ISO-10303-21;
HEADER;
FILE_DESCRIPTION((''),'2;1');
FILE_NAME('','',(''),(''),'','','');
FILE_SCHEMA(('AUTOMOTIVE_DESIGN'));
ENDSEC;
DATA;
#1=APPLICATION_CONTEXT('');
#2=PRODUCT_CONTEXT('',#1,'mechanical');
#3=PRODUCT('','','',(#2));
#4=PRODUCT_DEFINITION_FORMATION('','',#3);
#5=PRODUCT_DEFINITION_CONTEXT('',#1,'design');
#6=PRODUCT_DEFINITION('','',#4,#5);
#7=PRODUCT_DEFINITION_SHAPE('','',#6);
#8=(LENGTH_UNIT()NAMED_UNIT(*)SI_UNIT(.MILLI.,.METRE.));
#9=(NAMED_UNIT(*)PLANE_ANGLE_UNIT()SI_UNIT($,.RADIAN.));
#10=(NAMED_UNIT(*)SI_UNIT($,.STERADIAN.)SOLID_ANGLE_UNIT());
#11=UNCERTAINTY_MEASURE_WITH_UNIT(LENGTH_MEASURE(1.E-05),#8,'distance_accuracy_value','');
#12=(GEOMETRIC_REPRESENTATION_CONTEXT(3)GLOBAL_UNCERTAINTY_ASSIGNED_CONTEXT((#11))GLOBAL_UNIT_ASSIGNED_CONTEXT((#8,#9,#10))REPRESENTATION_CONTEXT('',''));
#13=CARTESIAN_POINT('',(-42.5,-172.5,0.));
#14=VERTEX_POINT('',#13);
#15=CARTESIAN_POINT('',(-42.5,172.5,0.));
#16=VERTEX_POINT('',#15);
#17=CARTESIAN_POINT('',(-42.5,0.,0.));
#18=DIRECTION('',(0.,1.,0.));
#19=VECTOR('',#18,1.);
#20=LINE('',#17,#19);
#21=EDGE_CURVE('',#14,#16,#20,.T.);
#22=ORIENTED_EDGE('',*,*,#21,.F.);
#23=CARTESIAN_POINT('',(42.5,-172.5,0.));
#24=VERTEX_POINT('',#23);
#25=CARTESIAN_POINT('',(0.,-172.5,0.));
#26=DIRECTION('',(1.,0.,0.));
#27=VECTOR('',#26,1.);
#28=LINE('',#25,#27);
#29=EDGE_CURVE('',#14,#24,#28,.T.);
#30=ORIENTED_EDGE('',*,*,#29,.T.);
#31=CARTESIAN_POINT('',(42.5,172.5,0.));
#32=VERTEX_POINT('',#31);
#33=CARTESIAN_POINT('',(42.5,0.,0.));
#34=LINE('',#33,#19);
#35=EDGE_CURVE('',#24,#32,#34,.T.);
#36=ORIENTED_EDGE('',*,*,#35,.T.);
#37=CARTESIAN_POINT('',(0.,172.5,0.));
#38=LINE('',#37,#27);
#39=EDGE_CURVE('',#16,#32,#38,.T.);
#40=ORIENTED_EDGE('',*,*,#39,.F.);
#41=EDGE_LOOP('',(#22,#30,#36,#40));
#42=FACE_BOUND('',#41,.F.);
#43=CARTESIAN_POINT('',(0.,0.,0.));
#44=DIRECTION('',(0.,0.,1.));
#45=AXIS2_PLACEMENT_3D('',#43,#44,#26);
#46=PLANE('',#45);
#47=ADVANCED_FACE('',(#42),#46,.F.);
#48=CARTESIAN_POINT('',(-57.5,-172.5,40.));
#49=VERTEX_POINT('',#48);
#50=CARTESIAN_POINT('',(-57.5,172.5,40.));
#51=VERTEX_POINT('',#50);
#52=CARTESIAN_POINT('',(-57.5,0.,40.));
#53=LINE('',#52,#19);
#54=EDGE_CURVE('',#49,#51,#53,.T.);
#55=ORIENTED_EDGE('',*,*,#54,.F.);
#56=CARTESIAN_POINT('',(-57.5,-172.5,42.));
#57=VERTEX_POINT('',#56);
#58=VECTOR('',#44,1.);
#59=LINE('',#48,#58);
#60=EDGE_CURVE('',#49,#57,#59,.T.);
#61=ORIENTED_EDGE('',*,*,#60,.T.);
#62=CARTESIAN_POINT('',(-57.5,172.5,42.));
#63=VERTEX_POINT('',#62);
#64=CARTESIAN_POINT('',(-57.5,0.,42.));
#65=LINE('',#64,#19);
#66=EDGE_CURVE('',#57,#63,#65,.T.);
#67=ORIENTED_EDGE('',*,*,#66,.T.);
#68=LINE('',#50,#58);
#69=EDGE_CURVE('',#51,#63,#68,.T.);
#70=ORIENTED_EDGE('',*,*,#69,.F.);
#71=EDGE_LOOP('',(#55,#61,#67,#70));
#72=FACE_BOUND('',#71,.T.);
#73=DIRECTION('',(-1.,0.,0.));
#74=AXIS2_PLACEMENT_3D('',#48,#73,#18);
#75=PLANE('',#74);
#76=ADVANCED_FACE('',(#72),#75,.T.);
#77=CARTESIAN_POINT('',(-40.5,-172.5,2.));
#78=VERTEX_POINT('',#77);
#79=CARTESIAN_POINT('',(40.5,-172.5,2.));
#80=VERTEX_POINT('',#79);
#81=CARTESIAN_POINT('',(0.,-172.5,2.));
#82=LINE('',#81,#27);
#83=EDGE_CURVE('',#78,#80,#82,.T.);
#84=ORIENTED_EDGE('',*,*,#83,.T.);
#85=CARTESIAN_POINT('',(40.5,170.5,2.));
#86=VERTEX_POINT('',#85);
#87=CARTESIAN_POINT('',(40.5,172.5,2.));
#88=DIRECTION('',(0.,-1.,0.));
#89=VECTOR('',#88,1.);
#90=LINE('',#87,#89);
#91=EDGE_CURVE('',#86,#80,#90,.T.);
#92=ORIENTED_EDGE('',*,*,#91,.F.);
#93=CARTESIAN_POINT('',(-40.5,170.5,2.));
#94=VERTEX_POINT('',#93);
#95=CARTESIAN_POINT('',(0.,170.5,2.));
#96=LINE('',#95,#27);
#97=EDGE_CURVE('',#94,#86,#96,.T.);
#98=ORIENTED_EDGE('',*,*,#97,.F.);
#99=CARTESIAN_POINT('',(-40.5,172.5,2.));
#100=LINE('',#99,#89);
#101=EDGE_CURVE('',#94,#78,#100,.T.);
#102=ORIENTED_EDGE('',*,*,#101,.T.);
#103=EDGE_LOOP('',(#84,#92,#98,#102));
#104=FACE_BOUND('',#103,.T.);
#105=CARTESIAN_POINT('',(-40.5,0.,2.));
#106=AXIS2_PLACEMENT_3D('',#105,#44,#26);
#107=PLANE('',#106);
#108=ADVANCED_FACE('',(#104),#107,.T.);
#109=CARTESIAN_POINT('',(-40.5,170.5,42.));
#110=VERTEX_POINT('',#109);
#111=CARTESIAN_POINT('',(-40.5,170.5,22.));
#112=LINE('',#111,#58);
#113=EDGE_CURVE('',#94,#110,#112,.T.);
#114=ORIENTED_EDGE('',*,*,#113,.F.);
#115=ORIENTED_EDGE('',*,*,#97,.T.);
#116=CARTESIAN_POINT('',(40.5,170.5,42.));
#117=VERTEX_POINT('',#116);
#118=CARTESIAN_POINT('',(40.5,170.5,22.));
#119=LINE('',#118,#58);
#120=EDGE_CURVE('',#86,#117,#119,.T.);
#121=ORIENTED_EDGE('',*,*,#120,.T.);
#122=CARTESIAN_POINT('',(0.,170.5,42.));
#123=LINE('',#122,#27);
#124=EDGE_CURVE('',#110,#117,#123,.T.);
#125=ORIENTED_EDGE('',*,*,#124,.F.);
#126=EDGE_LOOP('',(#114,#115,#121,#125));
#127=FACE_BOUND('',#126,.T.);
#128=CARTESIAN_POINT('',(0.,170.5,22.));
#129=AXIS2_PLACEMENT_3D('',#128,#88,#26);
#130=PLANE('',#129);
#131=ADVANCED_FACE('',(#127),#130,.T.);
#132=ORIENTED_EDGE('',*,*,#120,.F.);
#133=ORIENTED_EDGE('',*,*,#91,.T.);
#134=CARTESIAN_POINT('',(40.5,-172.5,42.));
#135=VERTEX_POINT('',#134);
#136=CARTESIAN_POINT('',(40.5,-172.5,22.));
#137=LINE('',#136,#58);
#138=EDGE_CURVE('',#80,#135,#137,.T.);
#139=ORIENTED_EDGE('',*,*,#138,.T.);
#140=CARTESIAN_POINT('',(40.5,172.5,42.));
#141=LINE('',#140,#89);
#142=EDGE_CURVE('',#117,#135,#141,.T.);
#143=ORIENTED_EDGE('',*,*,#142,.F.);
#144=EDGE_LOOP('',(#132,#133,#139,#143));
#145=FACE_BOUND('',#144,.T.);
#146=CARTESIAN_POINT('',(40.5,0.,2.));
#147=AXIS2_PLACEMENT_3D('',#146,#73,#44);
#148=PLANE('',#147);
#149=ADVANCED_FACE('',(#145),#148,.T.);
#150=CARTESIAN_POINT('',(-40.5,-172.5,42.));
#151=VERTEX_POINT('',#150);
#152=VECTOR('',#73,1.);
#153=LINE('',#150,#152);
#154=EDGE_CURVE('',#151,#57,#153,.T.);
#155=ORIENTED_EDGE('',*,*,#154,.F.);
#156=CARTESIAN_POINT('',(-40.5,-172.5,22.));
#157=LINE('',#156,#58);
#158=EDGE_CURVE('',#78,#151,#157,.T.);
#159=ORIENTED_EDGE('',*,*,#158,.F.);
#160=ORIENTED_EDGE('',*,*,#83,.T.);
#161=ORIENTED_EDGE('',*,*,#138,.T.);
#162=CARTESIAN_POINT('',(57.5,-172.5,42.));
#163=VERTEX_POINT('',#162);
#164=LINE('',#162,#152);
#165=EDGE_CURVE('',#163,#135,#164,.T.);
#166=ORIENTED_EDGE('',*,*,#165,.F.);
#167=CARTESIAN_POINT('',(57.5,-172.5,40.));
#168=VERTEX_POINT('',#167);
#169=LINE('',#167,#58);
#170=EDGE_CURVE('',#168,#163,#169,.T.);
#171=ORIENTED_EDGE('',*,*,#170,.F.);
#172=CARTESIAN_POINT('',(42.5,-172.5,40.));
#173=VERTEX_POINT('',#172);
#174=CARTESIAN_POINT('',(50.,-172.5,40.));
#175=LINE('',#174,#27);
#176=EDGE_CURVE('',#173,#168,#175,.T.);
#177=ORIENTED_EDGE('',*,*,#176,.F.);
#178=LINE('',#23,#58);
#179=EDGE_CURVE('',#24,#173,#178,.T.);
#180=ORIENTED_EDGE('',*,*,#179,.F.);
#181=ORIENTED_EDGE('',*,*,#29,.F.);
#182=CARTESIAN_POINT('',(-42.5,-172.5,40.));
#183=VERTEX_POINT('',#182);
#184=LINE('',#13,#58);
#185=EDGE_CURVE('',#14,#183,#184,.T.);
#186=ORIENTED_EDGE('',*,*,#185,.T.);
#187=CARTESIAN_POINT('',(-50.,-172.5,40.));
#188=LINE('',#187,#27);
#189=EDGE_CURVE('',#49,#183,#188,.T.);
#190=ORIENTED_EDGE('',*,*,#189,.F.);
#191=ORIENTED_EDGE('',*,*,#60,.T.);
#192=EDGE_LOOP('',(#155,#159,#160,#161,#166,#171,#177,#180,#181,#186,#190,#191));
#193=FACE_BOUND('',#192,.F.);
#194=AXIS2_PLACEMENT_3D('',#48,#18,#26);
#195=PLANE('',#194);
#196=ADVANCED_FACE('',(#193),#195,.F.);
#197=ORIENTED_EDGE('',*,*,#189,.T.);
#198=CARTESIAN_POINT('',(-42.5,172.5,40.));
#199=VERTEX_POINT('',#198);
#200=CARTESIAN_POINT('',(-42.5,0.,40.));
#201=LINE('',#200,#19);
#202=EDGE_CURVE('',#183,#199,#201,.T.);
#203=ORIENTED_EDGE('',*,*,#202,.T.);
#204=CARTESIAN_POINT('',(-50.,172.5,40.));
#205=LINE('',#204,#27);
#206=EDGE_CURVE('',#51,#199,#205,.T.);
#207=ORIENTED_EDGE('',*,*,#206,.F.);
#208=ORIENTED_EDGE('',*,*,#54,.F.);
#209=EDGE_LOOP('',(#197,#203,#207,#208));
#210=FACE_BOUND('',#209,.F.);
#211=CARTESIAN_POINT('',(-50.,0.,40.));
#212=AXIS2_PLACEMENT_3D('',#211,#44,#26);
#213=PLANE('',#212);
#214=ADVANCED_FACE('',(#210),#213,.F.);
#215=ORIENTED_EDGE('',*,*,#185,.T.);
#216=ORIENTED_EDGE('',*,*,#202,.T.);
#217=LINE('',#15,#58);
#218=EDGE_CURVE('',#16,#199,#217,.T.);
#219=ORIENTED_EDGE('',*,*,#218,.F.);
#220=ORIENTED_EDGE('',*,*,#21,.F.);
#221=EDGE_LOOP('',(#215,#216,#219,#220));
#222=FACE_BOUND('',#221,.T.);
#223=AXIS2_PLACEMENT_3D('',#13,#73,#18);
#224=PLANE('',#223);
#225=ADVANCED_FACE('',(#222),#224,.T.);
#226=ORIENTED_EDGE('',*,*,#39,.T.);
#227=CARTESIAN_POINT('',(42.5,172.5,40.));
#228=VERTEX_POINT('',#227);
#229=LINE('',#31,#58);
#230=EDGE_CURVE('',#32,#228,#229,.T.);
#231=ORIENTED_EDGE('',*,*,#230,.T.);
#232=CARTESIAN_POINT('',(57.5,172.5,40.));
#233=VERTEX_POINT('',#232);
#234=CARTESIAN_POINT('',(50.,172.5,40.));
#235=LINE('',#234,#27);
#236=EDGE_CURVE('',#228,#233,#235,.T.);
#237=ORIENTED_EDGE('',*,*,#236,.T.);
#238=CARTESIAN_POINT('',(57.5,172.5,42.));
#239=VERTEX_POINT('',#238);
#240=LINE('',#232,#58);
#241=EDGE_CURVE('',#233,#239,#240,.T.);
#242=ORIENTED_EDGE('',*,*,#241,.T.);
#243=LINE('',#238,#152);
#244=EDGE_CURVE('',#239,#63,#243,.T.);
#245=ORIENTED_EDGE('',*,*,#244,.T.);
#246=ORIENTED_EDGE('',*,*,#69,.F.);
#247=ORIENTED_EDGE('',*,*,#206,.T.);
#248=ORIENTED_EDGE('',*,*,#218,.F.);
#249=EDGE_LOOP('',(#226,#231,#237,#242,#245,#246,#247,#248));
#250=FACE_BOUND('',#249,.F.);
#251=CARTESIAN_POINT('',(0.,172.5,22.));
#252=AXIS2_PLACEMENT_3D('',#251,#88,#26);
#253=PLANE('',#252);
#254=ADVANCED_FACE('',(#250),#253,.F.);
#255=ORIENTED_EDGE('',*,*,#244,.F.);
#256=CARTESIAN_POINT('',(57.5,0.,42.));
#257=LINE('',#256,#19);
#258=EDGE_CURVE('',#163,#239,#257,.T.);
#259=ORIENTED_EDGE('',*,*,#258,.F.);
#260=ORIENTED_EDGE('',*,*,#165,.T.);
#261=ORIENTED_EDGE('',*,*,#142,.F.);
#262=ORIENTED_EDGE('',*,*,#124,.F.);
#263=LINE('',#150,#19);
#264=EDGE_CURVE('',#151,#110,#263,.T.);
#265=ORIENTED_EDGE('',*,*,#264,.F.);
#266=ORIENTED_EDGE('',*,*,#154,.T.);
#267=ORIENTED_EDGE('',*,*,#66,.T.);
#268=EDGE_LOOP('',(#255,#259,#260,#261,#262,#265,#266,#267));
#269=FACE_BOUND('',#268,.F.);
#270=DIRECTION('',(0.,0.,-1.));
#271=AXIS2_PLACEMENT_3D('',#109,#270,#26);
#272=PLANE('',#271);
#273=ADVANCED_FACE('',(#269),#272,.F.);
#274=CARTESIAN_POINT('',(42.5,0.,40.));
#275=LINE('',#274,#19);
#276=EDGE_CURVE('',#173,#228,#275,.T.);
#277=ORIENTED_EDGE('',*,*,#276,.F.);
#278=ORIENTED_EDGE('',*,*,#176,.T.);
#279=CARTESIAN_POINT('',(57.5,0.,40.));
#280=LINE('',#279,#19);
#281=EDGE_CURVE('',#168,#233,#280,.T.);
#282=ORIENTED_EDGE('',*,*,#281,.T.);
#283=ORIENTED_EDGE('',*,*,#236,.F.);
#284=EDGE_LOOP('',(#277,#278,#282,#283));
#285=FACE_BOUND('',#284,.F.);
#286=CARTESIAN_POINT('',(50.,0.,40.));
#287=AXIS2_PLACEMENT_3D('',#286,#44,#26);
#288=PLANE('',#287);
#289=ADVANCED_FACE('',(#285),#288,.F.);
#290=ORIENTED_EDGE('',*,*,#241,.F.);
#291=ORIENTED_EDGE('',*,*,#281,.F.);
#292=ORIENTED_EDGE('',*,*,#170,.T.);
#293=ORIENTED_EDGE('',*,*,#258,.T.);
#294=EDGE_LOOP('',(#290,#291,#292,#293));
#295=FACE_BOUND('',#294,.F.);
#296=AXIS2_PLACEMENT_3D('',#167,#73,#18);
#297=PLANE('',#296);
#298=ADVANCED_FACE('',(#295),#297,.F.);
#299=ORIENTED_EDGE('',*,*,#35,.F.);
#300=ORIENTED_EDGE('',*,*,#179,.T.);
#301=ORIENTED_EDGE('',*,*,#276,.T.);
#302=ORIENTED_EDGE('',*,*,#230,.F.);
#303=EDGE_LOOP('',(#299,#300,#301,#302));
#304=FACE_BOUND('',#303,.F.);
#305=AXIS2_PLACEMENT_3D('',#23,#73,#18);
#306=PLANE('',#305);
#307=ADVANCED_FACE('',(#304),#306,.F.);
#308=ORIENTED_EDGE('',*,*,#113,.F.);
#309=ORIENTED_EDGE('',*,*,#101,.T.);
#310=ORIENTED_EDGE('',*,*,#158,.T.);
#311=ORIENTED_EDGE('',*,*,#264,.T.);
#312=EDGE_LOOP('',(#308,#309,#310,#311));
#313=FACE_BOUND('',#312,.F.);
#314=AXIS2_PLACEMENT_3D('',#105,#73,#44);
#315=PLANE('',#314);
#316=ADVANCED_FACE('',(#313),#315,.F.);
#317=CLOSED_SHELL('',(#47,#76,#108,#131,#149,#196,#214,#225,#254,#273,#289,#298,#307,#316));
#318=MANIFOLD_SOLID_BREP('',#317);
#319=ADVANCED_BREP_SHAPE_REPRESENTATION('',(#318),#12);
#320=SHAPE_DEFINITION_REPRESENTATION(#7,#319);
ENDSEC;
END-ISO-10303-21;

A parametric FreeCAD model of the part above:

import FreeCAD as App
import Part
import Sketcher
Q = App.Units.Quantity


def faces_at(feature, points):
    """Names of the faces that lie closest to the given points."""
    faces = feature.Shape.Faces
    near = lambda p: min(range(len(faces)), key=lambda i: faces[i].distToShape(Part.Vertex(*p))[0])
    return sorted({f"Face{near(p) + 1}" for p in points})


def add_polygon(sketch, points):
    """Adds a closed chain of lines whose ends are joined by coincident constraints."""
    first, n = sketch.GeometryCount, len(points)
    for a, b in zip(points, points[1:] + points[:1]):
        sketch.addGeometry(Part.LineSegment(App.Vector(*a, 0), App.Vector(*b, 0)), False)
    for i in range(n):
        sketch.addConstraint(Sketcher.Constraint("Coincident", first + i, 2, first + (i + 1) % n, 1))

doc = App.newDocument("Part")
body = doc.addObject("PartDesign::Body", "Body")

sketch1 = doc.addObject("Sketcher::SketchObject", "Sketch")
body.addObject(sketch1)
sketch1.AttachmentSupport = (doc.XY_Plane, [""])
sketch1.MapMode = "FlatFace"
add_polygon(sketch1, [(-42, 172), (-42, -172), (42, -172), (42, 172)])
sketch1.addConstraint(Sketcher.Constraint("Vertical", 0))
sketch1.addConstraint(Sketcher.Constraint("Horizontal", 1))
sketch1.addConstraint(Sketcher.Constraint("Vertical", 2))
sketch1.addConstraint(Sketcher.Constraint("Horizontal", 3))
sketch1.addConstraint(Sketcher.Constraint("Symmetric", 0, 2, 2, 2, -1, 1))
sketch1.addConstraint(Sketcher.Constraint("DistanceX", 1, 1, 1, 2, Q("85 mm")))
sketch1.addConstraint(Sketcher.Constraint("DistanceY", 0, 2, 0, 1, Q("345 mm")))
pad1 = doc.addObject("PartDesign::Pad", "Pad")
body.addObject(pad1)
pad1.Profile = sketch1
pad1.Length = 42
doc.recompute()

thickness = doc.addObject("PartDesign::Thickness", "Thickness")
body.addObject(thickness)
thickness.Base = (pad1, faces_at(pad1, [(0, 0, 42)]))
thickness.Value = 2
thickness.Reversed = True
thickness.Join = "Arc"

sketch2 = doc.addObject("Sketcher::SketchObject", "Sketch001")
body.addObject(sketch2)
sketch2.AttachmentSupport = (doc.XZ_Plane, [""])
sketch2.MapMode = "FlatFace"
add_polygon(sketch2, [(-40, 42), (-40, 2), (40, 2), (40, 42)])
sketch2.addConstraint(Sketcher.Constraint("Vertical", 0))
sketch2.addConstraint(Sketcher.Constraint("Horizontal", 1))
sketch2.addConstraint(Sketcher.Constraint("Vertical", 2))
sketch2.addConstraint(Sketcher.Constraint("Horizontal", 3))
sketch2.addConstraint(Sketcher.Constraint("DistanceX", 1, 1, 1, 2, Q("81 mm")))
sketch2.addConstraint(Sketcher.Constraint("DistanceY", 0, 2, 0, 1, Q("40 mm")))
sketch2.addConstraint(Sketcher.Constraint("DistanceY", -1, 1, 0, 2, Q("2 mm")))
sketch2.addConstraint(Sketcher.Constraint("DistanceX", 0, 2, -1, 1, Q("40.5 mm")))
pocket1 = doc.addObject("PartDesign::Pocket", "Pocket")
body.addObject(pocket1)
pocket1.Profile = sketch2
pocket1.Type = "ThroughAll"
pocket1.Midplane = True

sketch3 = doc.addObject("Sketcher::SketchObject", "Sketch002")
body.addObject(sketch3)
sketch3.AttachmentSupport = (doc.XY_Plane, [""])
sketch3.MapMode = "FlatFace"
sketch3.AttachmentOffset = App.Placement(App.Vector(0, 0, 40), App.Rotation())
add_polygon(sketch3, [(-58, 172), (-58, -172), (-42, -172), (-42, 172)])
add_polygon(sketch3, [(42, 172), (42, -172), (58, -172), (58, 172)])
sketch3.addConstraint(Sketcher.Constraint("Vertical", 0))
sketch3.addConstraint(Sketcher.Constraint("Horizontal", 1))
sketch3.addConstraint(Sketcher.Constraint("Vertical", 2))
sketch3.addConstraint(Sketcher.Constraint("Horizontal", 3))
sketch3.addConstraint(Sketcher.Constraint("Vertical", 4))
sketch3.addConstraint(Sketcher.Constraint("Horizontal", 5))
sketch3.addConstraint(Sketcher.Constraint("Vertical", 6))
sketch3.addConstraint(Sketcher.Constraint("Horizontal", 7))
sketch3.addConstraint(Sketcher.Constraint("Symmetric", 2, 2, 4, 2, -1, 1))
sketch3.addConstraint(Sketcher.Constraint("Symmetric", 0, 2, 6, 2, -1, 1))
sketch3.addConstraint(Sketcher.Constraint("Horizontal", 1, 2, 4, 2))
sketch3.addConstraint(Sketcher.Constraint("DistanceX", 1, 1, 1, 2, Q("15 mm")))
sketch3.addConstraint(Sketcher.Constraint("DistanceY", 0, 2, 0, 1, Q("345 mm")))
sketch3.addConstraint(Sketcher.Constraint("DistanceX", 1, 2, 4, 2, Q("85 mm")))
pad2 = doc.addObject("PartDesign::Pad", "Pad001")
body.addObject(pad2)
pad2.Profile = sketch3
pad2.Length = 2

sketch4 = doc.addObject("Sketcher::SketchObject", "Sketch003")
body.addObject(sketch4)
sketch4.AttachmentSupport = (doc.XZ_Plane, [""])
sketch4.MapMode = "FlatFace"
sketch4.AttachmentOffset = App.Placement(App.Vector(0, 0, -170.5), App.Rotation())
add_polygon(sketch4, [(-40, 42), (-40, 2), (40, 2), (40, 42)])
sketch4.addConstraint(Sketcher.Constraint("Vertical", 0))
sketch4.addConstraint(Sketcher.Constraint("Horizontal", 1))
sketch4.addConstraint(Sketcher.Constraint("Vertical", 2))
sketch4.addConstraint(Sketcher.Constraint("Horizontal", 3))
sketch4.addConstraint(Sketcher.Constraint("DistanceX", 1, 1, 1, 2, Q("81 mm")))
sketch4.addConstraint(Sketcher.Constraint("DistanceY", 0, 2, 0, 1, Q("40 mm")))
sketch4.addConstraint(Sketcher.Constraint("DistanceY", -1, 1, 0, 2, Q("2 mm")))
sketch4.addConstraint(Sketcher.Constraint("DistanceX", 0, 2, -1, 1, Q("40.5 mm")))
pad3 = doc.addObject("PartDesign::Pad", "Pad002")
body.addObject(pad3)
pad3.Profile = sketch4
pad3.Length = 2
pad3.Reversed = True

doc.recompute()
